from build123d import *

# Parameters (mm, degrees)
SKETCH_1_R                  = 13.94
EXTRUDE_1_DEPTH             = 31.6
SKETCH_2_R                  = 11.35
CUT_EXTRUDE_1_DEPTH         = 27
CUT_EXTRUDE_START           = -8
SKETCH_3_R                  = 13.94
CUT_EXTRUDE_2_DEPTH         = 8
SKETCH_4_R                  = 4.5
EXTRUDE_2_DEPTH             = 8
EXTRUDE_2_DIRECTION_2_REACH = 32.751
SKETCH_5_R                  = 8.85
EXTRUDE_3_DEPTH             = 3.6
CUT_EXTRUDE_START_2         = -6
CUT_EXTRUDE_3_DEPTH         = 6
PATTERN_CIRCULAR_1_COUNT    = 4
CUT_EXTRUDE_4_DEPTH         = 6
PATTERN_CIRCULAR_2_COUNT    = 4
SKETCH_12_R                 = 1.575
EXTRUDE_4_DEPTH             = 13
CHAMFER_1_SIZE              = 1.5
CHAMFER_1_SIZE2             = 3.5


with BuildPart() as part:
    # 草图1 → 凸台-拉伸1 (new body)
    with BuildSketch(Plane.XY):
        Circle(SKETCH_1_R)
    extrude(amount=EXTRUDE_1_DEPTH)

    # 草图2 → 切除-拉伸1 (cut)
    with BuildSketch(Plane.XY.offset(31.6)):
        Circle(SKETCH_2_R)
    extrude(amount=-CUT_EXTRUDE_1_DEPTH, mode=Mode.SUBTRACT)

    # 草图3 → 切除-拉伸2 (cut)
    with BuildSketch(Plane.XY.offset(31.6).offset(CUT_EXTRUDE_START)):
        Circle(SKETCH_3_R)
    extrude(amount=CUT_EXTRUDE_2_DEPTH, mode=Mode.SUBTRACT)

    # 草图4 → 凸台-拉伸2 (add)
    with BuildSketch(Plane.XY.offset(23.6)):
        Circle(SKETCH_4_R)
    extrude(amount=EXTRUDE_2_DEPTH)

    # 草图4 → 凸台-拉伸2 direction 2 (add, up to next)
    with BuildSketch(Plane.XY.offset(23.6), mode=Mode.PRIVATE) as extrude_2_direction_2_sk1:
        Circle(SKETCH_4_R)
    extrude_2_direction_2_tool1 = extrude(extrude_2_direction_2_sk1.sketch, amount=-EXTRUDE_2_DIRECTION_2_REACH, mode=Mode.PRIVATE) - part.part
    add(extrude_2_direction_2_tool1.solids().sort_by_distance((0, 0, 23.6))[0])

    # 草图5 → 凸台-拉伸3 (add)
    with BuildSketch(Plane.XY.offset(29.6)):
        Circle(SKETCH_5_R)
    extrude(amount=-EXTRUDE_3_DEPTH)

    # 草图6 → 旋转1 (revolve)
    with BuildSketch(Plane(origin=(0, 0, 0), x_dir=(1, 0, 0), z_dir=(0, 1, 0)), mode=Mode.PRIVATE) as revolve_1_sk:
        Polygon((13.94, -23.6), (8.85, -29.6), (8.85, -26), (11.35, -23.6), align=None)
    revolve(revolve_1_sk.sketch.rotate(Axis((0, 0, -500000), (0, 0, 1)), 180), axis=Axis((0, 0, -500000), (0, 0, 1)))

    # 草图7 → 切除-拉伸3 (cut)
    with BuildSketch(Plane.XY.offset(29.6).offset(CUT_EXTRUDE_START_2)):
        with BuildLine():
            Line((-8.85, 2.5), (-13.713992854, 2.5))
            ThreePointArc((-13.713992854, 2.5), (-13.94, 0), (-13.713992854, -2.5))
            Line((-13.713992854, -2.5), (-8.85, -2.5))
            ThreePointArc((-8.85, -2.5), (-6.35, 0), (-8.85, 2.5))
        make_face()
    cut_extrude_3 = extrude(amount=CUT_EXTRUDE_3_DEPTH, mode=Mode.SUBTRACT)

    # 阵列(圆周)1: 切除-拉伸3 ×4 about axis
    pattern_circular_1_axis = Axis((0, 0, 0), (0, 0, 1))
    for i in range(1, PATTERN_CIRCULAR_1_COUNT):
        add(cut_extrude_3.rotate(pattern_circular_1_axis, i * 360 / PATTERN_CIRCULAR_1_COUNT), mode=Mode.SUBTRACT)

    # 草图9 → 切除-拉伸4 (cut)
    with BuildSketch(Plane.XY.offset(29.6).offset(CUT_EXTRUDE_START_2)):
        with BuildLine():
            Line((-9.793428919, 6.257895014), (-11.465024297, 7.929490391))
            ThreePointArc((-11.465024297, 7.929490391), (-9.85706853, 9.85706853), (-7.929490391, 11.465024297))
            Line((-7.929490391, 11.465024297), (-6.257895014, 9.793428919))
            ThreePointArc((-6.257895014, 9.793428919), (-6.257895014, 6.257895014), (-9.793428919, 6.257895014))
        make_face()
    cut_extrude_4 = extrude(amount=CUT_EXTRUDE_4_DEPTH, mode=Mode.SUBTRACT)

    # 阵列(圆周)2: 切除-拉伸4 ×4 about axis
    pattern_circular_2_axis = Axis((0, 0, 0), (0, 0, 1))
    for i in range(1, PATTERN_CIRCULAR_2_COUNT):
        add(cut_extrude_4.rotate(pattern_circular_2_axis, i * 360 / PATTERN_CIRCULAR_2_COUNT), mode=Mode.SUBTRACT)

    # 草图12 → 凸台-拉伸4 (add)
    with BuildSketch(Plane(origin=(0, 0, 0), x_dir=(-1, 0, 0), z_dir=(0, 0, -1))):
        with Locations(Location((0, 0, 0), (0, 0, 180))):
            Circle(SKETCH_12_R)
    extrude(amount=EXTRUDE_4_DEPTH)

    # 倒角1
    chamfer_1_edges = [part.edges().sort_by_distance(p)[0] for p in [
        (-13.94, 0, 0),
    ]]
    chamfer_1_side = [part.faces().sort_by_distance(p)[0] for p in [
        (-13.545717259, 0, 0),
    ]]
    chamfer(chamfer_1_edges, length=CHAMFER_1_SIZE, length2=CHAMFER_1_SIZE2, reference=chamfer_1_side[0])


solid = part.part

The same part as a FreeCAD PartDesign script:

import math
import FreeCAD as App
import Part
import Sketcher
Q = App.Units.Quantity


def edges_at(feature, points):
    """Names of the edges that pass closest to the given points."""
    edges = feature.Shape.Edges
    near = lambda p: min(range(len(edges)), key=lambda i: edges[i].distToShape(Part.Vertex(*p))[0])
    return sorted({f"Edge{near(p) + 1}" for p in points})

doc = App.newDocument("Part")
body = doc.addObject("PartDesign::Body", "Body")
body.AllowCompound = True

# Sketch on XY plane
sketch1 = body.newObject("Sketcher::SketchObject", "Sketch")
sketch1.AttachmentSupport = (doc.getObject("XY_Plane"), [""])
sketch1.MapMode = "FlatFace"
sketch1.addGeometry(Part.Circle(App.Vector(0, 0, 0), App.Vector(0, 0, 1), 13.94), False)
sketch1.addConstraint([
    Sketcher.Constraint("Coincident", 0, 3, -1, 1),
    Sketcher.Constraint("Diameter", 0, Q("27.88 mm")),
])
pad1 = body.newObject("PartDesign::Pad", "Pad")
pad1.Profile = sketch1
pad1.Length = 31.6

# Sketch on XY plane
sketch2 = body.newObject("Sketcher::SketchObject", "Sketch001")
sketch2.AttachmentSupport = (doc.getObject("XY_Plane"), [""])
sketch2.MapMode = "FlatFace"
sketch2.AttachmentOffset = App.Placement(App.Vector(0, 0, 31.6), App.Rotation())
sketch2.addGeometry(Part.Circle(App.Vector(0, 0, 0), App.Vector(0, 0, 1), 11.35), False)
sketch2.addConstraint([
    Sketcher.Constraint("Coincident", 0, 3, -1, 1),
    Sketcher.Constraint("Diameter", 0, Q("22.7 mm")),
])
pocket1 = body.newObject("PartDesign::Pocket", "Pocket")
pocket1.Profile = sketch2
pocket1.Length = 27

# Sketch on XY plane
sketch3 = body.newObject("Sketcher::SketchObject", "Sketch002")
sketch3.AttachmentSupport = (doc.getObject("XY_Plane"), [""])
sketch3.MapMode = "FlatFace"
sketch3.AttachmentOffset = App.Placement(App.Vector(0, 0, 23.6), App.Rotation())
sketch3.addGeometry(Part.Circle(App.Vector(0, 0, 0), App.Vector(0, 0, 1), 13.94), False)
sketch3.addConstraint([
    Sketcher.Constraint("Coincident", 0, 3, -1, 1),
    Sketcher.Constraint("Diameter", 0, Q("27.88 mm")),
])
pocket2 = body.newObject("PartDesign::Pocket", "Pocket001")
pocket2.Profile = sketch3
pocket2.Length = 8
pocket2.Reversed = True

# Sketch on XY plane
sketch4 = body.newObject("Sketcher::SketchObject", "Sketch003")
sketch4.AttachmentSupport = (doc.getObject("XY_Plane"), [""])
sketch4.MapMode = "FlatFace"
sketch4.AttachmentOffset = App.Placement(App.Vector(0, 0, 23.6), App.Rotation())
sketch4.addGeometry(Part.Circle(App.Vector(0, 0, 0), App.Vector(0, 0, 1), 4.5), False)
sketch4.addConstraint([
    Sketcher.Constraint("Coincident", 0, 3, -1, 1),
    Sketcher.Constraint("Diameter", 0, Q("9 mm")),
])
pad2 = body.newObject("PartDesign::Pad", "Pad001")
pad2.Profile = sketch4
pad2.Length = 8

# Sketch on XY plane
sketch5 = body.newObject("Sketcher::SketchObject", "Sketch004")
sketch5.AttachmentSupport = (doc.getObject("XY_Plane"), [""])
sketch5.MapMode = "FlatFace"
sketch5.AttachmentOffset = App.Placement(App.Vector(0, 0, 23.6), App.Rotation())
sketch5.addGeometry(Part.Circle(App.Vector(0, 0, 0), App.Vector(0, 0, 1), 4.5), False)
sketch5.addConstraint([
    Sketcher.Constraint("Coincident", 0, 3, -1, 1),
    Sketcher.Constraint("Diameter", 0, Q("9 mm")),
])
pad3 = body.newObject("PartDesign::Pad", "Pad002")
pad3.Profile = sketch5
pad3.Type = "UpToFirst"
pad3.Reversed = True

# Sketch on XY plane
sketch6 = body.newObject("Sketcher::SketchObject", "Sketch005")
sketch6.AttachmentSupport = (doc.getObject("XY_Plane"), [""])
sketch6.MapMode = "FlatFace"
sketch6.AttachmentOffset = App.Placement(App.Vector(0, 0, 29.6), App.Rotation())
sketch6.addGeometry(Part.Circle(App.Vector(0, 0, 0), App.Vector(0, 0, 1), 8.85), False)
sketch6.addConstraint([
    Sketcher.Constraint("Coincident", 0, 3, -1, 1),
    Sketcher.Constraint("Diameter", 0, Q("17.7 mm")),
])
pad4 = body.newObject("PartDesign::Pad", "Pad003")
pad4.Profile = sketch6
pad4.Length = 3.6
pad4.Reversed = True

# Sketch on XZ plane
sketch7 = body.newObject("Sketcher::SketchObject", "Sketch006")
sketch7.AttachmentSupport = (doc.getObject("XZ_Plane"), [""])
sketch7.MapMode = "FlatFace"
sketch7.addGeometry([
    Part.LineSegment(App.Vector(8.85, 29.6, 0), App.Vector(13.94, 23.6, 0)),
    Part.LineSegment(App.Vector(13.94, 23.6, 0), App.Vector(11.35, 23.6, 0)),
    Part.LineSegment(App.Vector(11.35, 23.6, 0), App.Vector(8.85, 26, 0)),
    Part.LineSegment(App.Vector(8.85, 26, 0), App.Vector(8.85, 29.6, 0)),
], False)
sketch7.addConstraint([
    Sketcher.Constraint("Coincident", 0, 2, 1, 1),
    Sketcher.Constraint("Coincident", 1, 2, 2, 1),
    Sketcher.Constraint("Coincident", 2, 2, 3, 1),
    Sketcher.Constraint("Coincident", 3, 2, 0, 1),
    Sketcher.Constraint("Horizontal", 1),
    Sketcher.Constraint("Vertical", 3),
    Sketcher.Constraint("DistanceY", 3, 1, 3, 2, Q("3.6 mm")),
    Sketcher.Constraint("DistanceY", -1, 1, 2, 2, Q("26 mm")),
    Sketcher.Constraint("DistanceY", 1, 2, 3, 2, Q("6 mm")),
    Sketcher.Constraint("DistanceX", 1, 2, 1, 1, Q("2.59 mm")),
    Sketcher.Constraint("DistanceX", 2, 2, 1, 2, Q("2.5 mm")),
    Sketcher.Constraint("DistanceX", -1, 1, 0, 2, Q("13.94 mm")),
])
revolution = body.newObject("PartDesign::Revolution", "Revolution")
revolution.Profile = sketch7
revolution.ReferenceAxis = (sketch7, ["V_Axis"])
revolution.Angle = 360

# Sketch on XY plane
sketch8 = body.newObject("Sketcher::SketchObject", "Sketch007")
sketch8.AttachmentSupport = (doc.getObject("XY_Plane"), [""])
sketch8.MapMode = "FlatFace"
sketch8.AttachmentOffset = App.Placement(App.Vector(0, 0, 23.6), App.Rotation())
sketch8.addGeometry([
    Part.LineSegment(App.Vector(-8.85, 2.5, 0), App.Vector(-13.713993, 2.5, 0)),
    Part.ArcOfCircle(Part.Circle(App.Vector(0, 0, 0), App.Vector(0, 0, 1), 13.94), math.radians(169.668679), math.radians(190.331321)),
    Part.LineSegment(App.Vector(-13.713993, -2.5, 0), App.Vector(-8.85, -2.5, 0)),
    Part.ArcOfCircle(Part.Circle(App.Vector(-8.85, 0, 0), App.Vector(0, 0, 1), 2.5), math.radians(-90), math.radians(90)),
], False)
sketch8.addConstraint([
    Sketcher.Constraint("Coincident", 0, 2, 1, 1),
    Sketcher.Constraint("Coincident", 1, 2, 2, 1),
    Sketcher.Constraint("Tangent", 2, 2, 3, 1),
    Sketcher.Constraint("Tangent", 3, 2, 0, 1),
    Sketcher.Constraint("Horizontal", 0),
    Sketcher.Constraint("Horizontal", 2),
    Sketcher.Constraint("Coincident", 1, 3, -1, 1),
    Sketcher.Constraint("PointOnObject", 3, 3, -1),
    Sketcher.Constraint("Radius", 3, Q("2.5 mm")),
    Sketcher.Constraint("Radius", 1, Q("13.94 mm")),
    Sketcher.Constraint("DistanceX", 3, 3, -1, 1, Q("8.85 mm")),
])
pocket3 = body.newObject("PartDesign::Pocket", "Pocket002")
pocket3.Profile = sketch8
pocket3.Length = 6
pocket3.Reversed = True
doc.recompute()

polarpattern = body.newObject("PartDesign::PolarPattern", "PolarPattern")
polarpattern.Originals = [pocket3]
polarpattern.Axis = (doc.getObject("Z_Axis"), [""])
polarpattern.Angle = 360
polarpattern.Occurrences = 4
body.Tip = polarpattern

# Sketch on XY plane
sketch9 = body.newObject("Sketcher::SketchObject", "Sketch008")
sketch9.AttachmentSupport = (doc.getObject("XY_Plane"), [""])
sketch9.MapMode = "FlatFace"
sketch9.AttachmentOffset = App.Placement(App.Vector(0, 0, 23.6), App.Rotation())
sketch9.addGeometry([
    Part.LineSegment(App.Vector(-11.465024, 7.92949, 0), App.Vector(-9.793429, 6.257895, 0)),
    Part.ArcOfCircle(Part.Circle(App.Vector(-8.025662, 8.025662, 0), App.Vector(0, 0, 1), 2.5), math.radians(-135), math.radians(45)),
    Part.LineSegment(App.Vector(-6.257895, 9.793429, 0), App.Vector(-7.92949, 11.465024, 0)),
    Part.ArcOfCircle(Part.Circle(App.Vector(0, 0, 0), App.Vector(0, 0, 1), 13.94), math.radians(124.668679), math.radians(145.331321)),
], False)
sketch9.addConstraint([
    Sketcher.Constraint("Tangent", 0, 2, 1, 1),
    Sketcher.Constraint("Tangent", 1, 2, 2, 1),
    Sketcher.Constraint("Coincident", 2, 2, 3, 1),
    Sketcher.Constraint("Coincident", 3, 2, 0, 1),
    Sketcher.Constraint("Coincident", 3, 3, -1, 1),
    Sketcher.Constraint("Parallel", 0, 2),
    Sketcher.Constraint("Equal", 0, 2),
    Sketcher.Constraint("Radius", 1, Q("2.5 mm")),
    Sketcher.Constraint("Angle", 0, Q("-45 deg")),
    Sketcher.Constraint("Radius", 3, Q("13.94 mm")),
    Sketcher.Constraint("DistanceX", 1, 3, -1, 1, Q("8.025662 mm")),
])
pocket4 = body.newObject("PartDesign::Pocket", "Pocket003")
pocket4.Profile = sketch9
pocket4.Length = 6
pocket4.Reversed = True
doc.recompute()

polarpattern2 = body.newObject("PartDesign::PolarPattern", "PolarPattern001")
polarpattern2.Originals = [pocket4]
polarpattern2.Axis = (doc.getObject("Z_Axis"), [""])
polarpattern2.Angle = 360
polarpattern2.Occurrences = 4
body.Tip = polarpattern2

# Sketch on XY plane
sketch10 = body.newObject("Sketcher::SketchObject", "Sketch009")
sketch10.AttachmentSupport = (doc.getObject("XY_Plane"), [""])
sketch10.MapMode = "FlatFace"
sketch10.addGeometry(Part.Circle(App.Vector(0, 0, 0), App.Vector(0, 0, 1), 1.575), False)
sketch10.addConstraint([
    Sketcher.Constraint("Coincident", 0, 3, -1, 1),
    Sketcher.Constraint("Diameter", 0, Q("3.15 mm")),
])
pad5 = body.newObject("PartDesign::Pad", "Pad004")
pad5.Profile = sketch10
pad5.Length = 13
pad5.Reversed = True
doc.recompute()

chamfer = body.newObject("PartDesign::Chamfer", "Chamfer")
chamfer.Base = (pad5, edges_at(pad5, [(-13.94, 0, 0)]))
chamfer.ChamferType = "Two distances"
chamfer.Size = 1.5
chamfer.Size2 = 3.5
chamfer.FlipDirection = True

doc.recompute()
